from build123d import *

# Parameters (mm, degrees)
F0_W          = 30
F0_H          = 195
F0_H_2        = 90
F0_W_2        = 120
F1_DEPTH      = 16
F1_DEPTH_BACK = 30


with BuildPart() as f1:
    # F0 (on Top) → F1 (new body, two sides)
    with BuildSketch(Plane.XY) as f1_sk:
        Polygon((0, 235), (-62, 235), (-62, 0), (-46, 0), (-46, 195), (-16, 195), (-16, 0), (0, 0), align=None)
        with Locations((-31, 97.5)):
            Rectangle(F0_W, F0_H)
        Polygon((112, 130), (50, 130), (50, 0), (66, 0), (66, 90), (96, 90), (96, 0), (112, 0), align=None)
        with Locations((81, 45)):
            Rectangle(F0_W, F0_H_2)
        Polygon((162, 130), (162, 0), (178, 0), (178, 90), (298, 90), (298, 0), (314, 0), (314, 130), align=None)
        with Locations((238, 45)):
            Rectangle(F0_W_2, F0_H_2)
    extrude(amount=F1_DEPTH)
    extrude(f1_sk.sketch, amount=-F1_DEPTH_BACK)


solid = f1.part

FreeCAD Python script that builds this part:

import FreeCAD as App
import Part
import Sketcher
from FreeCAD import Vector
Q = App.Units.Quantity


def add_polygon(sketch, points):
    """Adds a closed chain of lines whose ends are joined by coincident constraints."""
    first, n = sketch.GeometryCount, len(points)
    for a, b in zip(points, points[1:] + points[:1]):
        sketch.addGeometry(Part.LineSegment(App.Vector(*a, 0), App.Vector(*b, 0)), False)
    for i in range(n):
        sketch.addConstraint(Sketcher.Constraint("Coincident", first + i, 2, first + (i + 1) % n, 1))

doc = App.newDocument("Part")
params = doc.addObject("Spreadsheet::Sheet", "Params")
for row, (alias, value) in enumerate([
    ("sketch1_width", "62 mm"),
    ("sketch1_width2", "152 mm"),
    ("sketch1_height", "235 mm"),
    ("sketch1_height2", "130 mm"),
    ("pad1_length", "16 mm"),
    ("pad1_length2", "30 mm"),
], start=1):
    params.set(f"A{row}", alias)
    params.set(f"B{row}", "=" + value)
    params.setAlias(f"B{row}", alias)

body = doc.addObject("PartDesign::Body", "Body")
body.AllowCompound = True

# Sketch on XY plane
sketch1 = body.newObject("Sketcher::SketchObject", "Sketch")
sketch1.AttachmentSupport = (doc.getObject("XY_Plane"), [""])
sketch1.MapMode = "FlatFace"
add_polygon(sketch1, [(0, 235), (-62, 235), (-62, 0), (0, 0)])  # lines 0-3
add_polygon(sketch1, [(112, 130), (50, 130), (50, 0), (112, 0)])  # lines 4-7
add_polygon(sketch1, [(162, 130), (162, 0), (314, 0), (314, 130)])  # lines 8-11
sketch1.addConstraint([
    Sketcher.Constraint("Horizontal", 0),
    Sketcher.Constraint("Vertical", 1),
    Sketcher.Constraint("Horizontal", 2),
    Sketcher.Constraint("Vertical", 3),
    Sketcher.Constraint("Horizontal", 4),
    Sketcher.Constraint("Vertical", 5),
    Sketcher.Constraint("Horizontal", 6),
    Sketcher.Constraint("Vertical", 7),
    Sketcher.Constraint("Vertical", 8),
    Sketcher.Constraint("Horizontal", 9),
    Sketcher.Constraint("Vertical", 10),
    Sketcher.Constraint("Horizontal", 11),
    Sketcher.Constraint("Coincident", 2, 2, -1, 1),
    Sketcher.Constraint("PointOnObject", 5, 2, -1),
    Sketcher.Constraint("PointOnObject", 8, 2, -1),
    Sketcher.Constraint("Horizontal", 7, 2, 10, 2),
    Sketcher.Constraint("Equal", 2, 4),
    Sketcher.Constraint("DistanceX", 0, 2, 0, 1, Q("62 mm")),
    Sketcher.Constraint("DistanceX", 9, 1, 9, 2, Q("152 mm")),
    Sketcher.Constraint("DistanceY", 1, 2, 1, 1, Q("235 mm")),
    Sketcher.Constraint("DistanceY", 5, 2, 5, 1, Q("130 mm")),
    Sketcher.Constraint("DistanceX", -1, 1, 4, 2, Q("50 mm")),
    Sketcher.Constraint("DistanceX", -1, 1, 8, 2, Q("162 mm")),
])
sketch1.setExpression("Constraints[29]", "Params.sketch1_width")
sketch1.setExpression("Constraints[30]", "Params.sketch1_width2")
sketch1.setExpression("Constraints[31]", "Params.sketch1_height")
sketch1.setExpression("Constraints[32]", "Params.sketch1_height2")
pad1 = body.newObject("PartDesign::Pad", "Pad")
pad1.Profile = sketch1
pad1.Type = "TwoLengths"
pad1.setExpression("Length", "Params.pad1_length")
pad1.setExpression("Length2", "Params.pad1_length2")

doc.recompute()
